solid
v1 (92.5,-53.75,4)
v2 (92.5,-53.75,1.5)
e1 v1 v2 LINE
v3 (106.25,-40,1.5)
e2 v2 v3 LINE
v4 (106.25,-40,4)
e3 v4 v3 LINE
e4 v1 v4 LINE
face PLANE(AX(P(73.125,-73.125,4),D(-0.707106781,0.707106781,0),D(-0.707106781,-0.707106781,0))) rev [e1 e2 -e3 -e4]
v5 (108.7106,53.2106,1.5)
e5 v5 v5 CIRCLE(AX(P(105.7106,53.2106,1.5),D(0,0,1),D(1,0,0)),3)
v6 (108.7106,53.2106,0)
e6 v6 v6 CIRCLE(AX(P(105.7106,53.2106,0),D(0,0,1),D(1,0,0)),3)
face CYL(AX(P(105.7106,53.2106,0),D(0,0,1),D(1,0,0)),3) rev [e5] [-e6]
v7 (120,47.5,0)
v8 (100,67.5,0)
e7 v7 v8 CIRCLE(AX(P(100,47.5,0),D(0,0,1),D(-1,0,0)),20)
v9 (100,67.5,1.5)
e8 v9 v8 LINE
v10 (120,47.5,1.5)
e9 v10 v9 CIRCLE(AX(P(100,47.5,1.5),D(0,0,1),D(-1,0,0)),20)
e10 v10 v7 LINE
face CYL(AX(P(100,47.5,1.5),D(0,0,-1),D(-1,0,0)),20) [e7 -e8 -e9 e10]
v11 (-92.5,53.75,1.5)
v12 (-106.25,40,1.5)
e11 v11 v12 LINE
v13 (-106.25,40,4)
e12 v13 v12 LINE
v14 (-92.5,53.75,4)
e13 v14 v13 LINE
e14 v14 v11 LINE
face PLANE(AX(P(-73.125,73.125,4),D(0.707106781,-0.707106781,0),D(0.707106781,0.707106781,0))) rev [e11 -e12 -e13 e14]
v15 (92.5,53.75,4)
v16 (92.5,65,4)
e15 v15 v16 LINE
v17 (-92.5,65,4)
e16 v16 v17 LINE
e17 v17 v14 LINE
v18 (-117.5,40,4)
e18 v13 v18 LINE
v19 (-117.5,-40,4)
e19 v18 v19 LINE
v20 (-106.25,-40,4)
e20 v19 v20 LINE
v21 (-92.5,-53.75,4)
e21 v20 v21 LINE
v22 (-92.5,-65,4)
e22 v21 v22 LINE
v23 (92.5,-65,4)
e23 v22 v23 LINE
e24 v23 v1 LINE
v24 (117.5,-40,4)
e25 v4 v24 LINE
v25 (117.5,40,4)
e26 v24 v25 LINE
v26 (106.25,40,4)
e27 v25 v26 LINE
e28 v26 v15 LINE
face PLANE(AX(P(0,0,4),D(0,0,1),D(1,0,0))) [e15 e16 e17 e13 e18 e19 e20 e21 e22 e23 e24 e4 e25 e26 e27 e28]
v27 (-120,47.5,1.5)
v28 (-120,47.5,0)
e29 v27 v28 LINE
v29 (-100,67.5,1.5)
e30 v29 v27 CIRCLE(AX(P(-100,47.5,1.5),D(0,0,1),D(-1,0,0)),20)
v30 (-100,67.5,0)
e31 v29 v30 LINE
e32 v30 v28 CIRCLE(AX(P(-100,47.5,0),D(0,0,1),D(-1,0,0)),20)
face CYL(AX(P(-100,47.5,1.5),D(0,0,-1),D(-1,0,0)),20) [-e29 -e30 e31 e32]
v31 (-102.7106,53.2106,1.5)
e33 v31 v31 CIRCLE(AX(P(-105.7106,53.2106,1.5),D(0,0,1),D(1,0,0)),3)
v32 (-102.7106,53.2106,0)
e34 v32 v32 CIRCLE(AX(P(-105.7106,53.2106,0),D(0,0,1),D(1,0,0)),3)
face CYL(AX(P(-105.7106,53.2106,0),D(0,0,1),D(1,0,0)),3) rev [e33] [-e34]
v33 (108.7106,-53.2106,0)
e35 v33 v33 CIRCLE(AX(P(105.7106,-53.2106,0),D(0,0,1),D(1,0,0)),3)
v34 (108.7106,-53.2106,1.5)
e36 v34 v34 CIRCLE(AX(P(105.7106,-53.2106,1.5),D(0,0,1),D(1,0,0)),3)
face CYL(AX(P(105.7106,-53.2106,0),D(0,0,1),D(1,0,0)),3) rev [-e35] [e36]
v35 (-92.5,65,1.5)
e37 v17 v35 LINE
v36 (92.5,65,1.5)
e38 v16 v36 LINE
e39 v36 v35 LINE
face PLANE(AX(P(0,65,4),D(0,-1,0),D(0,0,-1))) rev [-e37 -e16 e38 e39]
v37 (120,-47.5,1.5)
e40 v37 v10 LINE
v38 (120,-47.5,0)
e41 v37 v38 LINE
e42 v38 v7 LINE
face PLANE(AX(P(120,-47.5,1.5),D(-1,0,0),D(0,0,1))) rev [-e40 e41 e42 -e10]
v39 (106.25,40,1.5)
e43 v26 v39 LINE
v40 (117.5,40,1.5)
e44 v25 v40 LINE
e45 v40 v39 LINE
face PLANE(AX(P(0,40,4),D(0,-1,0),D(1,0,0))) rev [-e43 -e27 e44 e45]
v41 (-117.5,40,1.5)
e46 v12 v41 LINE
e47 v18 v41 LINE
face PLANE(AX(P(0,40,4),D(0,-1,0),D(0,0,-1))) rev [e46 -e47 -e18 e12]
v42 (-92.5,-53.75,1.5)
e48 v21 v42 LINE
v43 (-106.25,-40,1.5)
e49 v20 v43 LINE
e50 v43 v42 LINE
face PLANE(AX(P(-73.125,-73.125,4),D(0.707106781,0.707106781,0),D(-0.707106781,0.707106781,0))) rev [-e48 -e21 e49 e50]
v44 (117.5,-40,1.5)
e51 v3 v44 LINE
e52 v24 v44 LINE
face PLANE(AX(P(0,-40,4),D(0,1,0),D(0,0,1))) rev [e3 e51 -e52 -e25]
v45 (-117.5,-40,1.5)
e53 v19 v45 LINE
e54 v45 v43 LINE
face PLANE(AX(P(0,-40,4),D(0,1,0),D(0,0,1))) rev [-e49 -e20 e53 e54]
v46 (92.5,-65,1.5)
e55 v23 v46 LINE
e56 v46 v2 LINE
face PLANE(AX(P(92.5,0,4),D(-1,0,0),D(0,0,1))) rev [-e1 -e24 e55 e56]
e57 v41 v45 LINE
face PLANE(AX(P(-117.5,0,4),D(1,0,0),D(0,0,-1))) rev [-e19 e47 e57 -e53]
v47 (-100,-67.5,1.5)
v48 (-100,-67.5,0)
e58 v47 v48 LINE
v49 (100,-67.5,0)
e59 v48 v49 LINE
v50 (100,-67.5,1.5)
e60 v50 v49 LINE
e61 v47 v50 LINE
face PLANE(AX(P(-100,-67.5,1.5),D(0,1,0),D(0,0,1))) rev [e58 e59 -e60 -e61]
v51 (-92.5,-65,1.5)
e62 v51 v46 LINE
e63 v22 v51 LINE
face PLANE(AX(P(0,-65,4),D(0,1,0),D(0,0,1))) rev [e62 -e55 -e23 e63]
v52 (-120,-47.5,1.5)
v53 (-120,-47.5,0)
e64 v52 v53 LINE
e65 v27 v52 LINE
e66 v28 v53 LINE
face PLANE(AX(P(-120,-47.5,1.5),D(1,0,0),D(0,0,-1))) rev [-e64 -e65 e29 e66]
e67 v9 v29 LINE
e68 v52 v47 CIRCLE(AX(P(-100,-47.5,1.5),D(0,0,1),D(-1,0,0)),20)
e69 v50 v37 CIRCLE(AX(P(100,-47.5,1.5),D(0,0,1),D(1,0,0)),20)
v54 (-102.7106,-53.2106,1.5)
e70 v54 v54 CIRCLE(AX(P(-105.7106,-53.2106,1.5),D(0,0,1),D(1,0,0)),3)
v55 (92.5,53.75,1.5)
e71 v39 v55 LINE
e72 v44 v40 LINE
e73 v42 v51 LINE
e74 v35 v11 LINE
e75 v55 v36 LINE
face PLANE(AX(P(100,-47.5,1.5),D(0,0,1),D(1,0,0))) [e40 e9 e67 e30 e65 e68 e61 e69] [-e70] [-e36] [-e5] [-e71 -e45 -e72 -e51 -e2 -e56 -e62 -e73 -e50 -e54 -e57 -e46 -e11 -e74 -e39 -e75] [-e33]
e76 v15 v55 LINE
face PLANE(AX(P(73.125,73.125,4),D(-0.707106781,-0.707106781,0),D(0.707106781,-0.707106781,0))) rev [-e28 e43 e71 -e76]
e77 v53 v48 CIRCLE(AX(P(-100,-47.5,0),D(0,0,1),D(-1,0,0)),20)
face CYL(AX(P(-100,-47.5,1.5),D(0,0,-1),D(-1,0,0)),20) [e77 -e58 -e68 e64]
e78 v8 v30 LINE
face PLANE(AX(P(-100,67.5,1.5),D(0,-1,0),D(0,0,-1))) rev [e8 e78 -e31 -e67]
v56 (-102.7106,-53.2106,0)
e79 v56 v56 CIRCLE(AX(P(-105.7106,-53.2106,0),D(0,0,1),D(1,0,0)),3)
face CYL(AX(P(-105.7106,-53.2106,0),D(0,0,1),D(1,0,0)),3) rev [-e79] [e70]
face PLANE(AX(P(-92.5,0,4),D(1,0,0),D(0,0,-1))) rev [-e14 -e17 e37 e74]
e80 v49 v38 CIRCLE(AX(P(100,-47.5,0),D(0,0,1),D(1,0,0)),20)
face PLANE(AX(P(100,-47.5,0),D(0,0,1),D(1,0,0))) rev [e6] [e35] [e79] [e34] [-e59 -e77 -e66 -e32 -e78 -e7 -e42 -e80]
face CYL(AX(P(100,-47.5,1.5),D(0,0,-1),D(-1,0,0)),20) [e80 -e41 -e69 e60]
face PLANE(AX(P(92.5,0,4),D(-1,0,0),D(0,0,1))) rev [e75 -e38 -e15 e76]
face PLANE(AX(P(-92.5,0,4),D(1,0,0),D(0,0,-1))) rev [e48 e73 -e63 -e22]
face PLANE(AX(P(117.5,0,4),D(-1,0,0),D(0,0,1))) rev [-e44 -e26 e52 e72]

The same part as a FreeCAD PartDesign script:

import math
import FreeCAD as App
import Part
import Sketcher

V = App.Vector
Q = App.Units.Quantity

doc = App.newDocument("Part")
body = doc.addObject("PartDesign::Body", "Body")

sketch1 = body.newObject("Sketcher::SketchObject", "Sketch")
sketch1.AttachmentSupport = (doc.getObject("XY_Plane"), [""])
sketch1.MapMode = "FlatFace"
sketch1.addGeometry(Part.LineSegment(V(-100, -68, 0), V(100, -68, 0)), False)
sketch1.addGeometry(Part.ArcOfCircle(Part.Circle(V(100, -48, 0), V(0, 0, 1), 20), math.radians(-90), math.radians(0)), False)
sketch1.addGeometry(Part.LineSegment(V(120, -48, 0), V(120, 48, 0)), False)
sketch1.addGeometry(Part.ArcOfCircle(Part.Circle(V(100, 48, 0), V(0, 0, 1), 20), math.radians(0), math.radians(90)), False)
sketch1.addGeometry(Part.LineSegment(V(100, 68, 0), V(-100, 68, 0)), False)
sketch1.addGeometry(Part.ArcOfCircle(Part.Circle(V(-100, 48, 0), V(0, 0, 1), 20), math.radians(90), math.radians(180)), False)
sketch1.addGeometry(Part.LineSegment(V(-120, 48, 0), V(-120, -48, 0)), False)
sketch1.addGeometry(Part.ArcOfCircle(Part.Circle(V(-100, -48, 0), V(0, 0, 1), 20), math.radians(180), math.radians(270)), False)
sketch1.addConstraint(Sketcher.Constraint("Tangent", 0, 2, 1, 1))
sketch1.addConstraint(Sketcher.Constraint("Tangent", 1, 2, 2, 1))
sketch1.addConstraint(Sketcher.Constraint("Tangent", 2, 2, 3, 1))
sketch1.addConstraint(Sketcher.Constraint("Tangent", 3, 2, 4, 1))
sketch1.addConstraint(Sketcher.Constraint("Tangent", 4, 2, 5, 1))
sketch1.addConstraint(Sketcher.Constraint("Tangent", 5, 2, 6, 1))
sketch1.addConstraint(Sketcher.Constraint("Tangent", 6, 2, 7, 1))
sketch1.addConstraint(Sketcher.Constraint("Tangent", 7, 2, 0, 1))
sketch1.addConstraint(Sketcher.Constraint("Horizontal", 0))
sketch1.addConstraint(Sketcher.Constraint("Vertical", 2))
sketch1.addConstraint(Sketcher.Constraint("Horizontal", 4))
sketch1.addConstraint(Sketcher.Constraint("Vertical", 6))
sketch1.addConstraint(Sketcher.Constraint("Equal", 1, 3))
sketch1.addConstraint(Sketcher.Constraint("Equal", 3, 5))
sketch1.addConstraint(Sketcher.Constraint("Equal", 5, 7))
sketch1.addConstraint(Sketcher.Constraint("Symmetric", 1, 3, 5, 3, -1, 1))
sketch1.addConstraint(Sketcher.Constraint("Radius", 1, Q("20 mm")))
sketch1.addConstraint(Sketcher.Constraint("DistanceX", 0, 1, 0, 2, Q("200 mm")))
sketch1.addConstraint(Sketcher.Constraint("DistanceY", 2, 1, 2, 2, Q("95 mm")))
pad1 = body.newObject("PartDesign::Pad", "Pad")
pad1.Profile = sketch1
pad1.Length = 1.5

sketch2 = body.newObject("Sketcher::SketchObject", "Sketch001")
sketch2.AttachmentSupport = (doc.getObject("XY_Plane"), [""])
sketch2.MapMode = "FlatFace"
sketch2.AttachmentOffset = App.Placement(V(0, 0, 1.5), App.Rotation())
sketch2.addGeometry(Part.Circle(V(105.7, 53.2, 0), V(0, 0, 1), 3), False)
sketch2.addGeometry(Part.Circle(V(105.7, -53.2, 0), V(0, 0, 1), 3), False)
sketch2.addGeometry(Part.Circle(V(-105.7, -53.2, 0), V(0, 0, 1), 3), False)
sketch2.addGeometry(Part.Circle(V(-105.7, 53.2, 0), V(0, 0, 1), 3), False)
sketch2.addConstraint(Sketcher.Constraint("Equal", 0, 1))
sketch2.addConstraint(Sketcher.Constraint("Equal", 1, 2))
sketch2.addConstraint(Sketcher.Constraint("Equal", 2, 3))
sketch2.addConstraint(Sketcher.Constraint("Symmetric", 0, 3, 2, 3, -1, 1))
sketch2.addConstraint(Sketcher.Constraint("Symmetric", 1, 3, 3, 3, -1, 1))
sketch2.addConstraint(Sketcher.Constraint("Symmetric", 1, 3, 2, 3, -2))
sketch2.addConstraint(Sketcher.Constraint("Diameter", 0, Q("6 mm")))
sketch2.addConstraint(Sketcher.Constraint("DistanceX", -1, 1, 0, 3, Q("105.7106 mm")))
sketch2.addConstraint(Sketcher.Constraint("DistanceY", -1, 1, 0, 3, Q("53.2106 mm")))
pocket1 = body.newObject("PartDesign::Pocket", "Pocket")
pocket1.Profile = sketch2
pocket1.Type = "ThroughAll"
pocket1.Midplane = True

sketch3 = body.newObject("Sketcher::SketchObject", "Sketch002")
sketch3.AttachmentSupport = (doc.getObject("XY_Plane"), [""])
sketch3.MapMode = "FlatFace"
sketch3.AttachmentOffset = App.Placement(V(0, 0, 1.5), App.Rotation())
sketch3.addGeometry(Part.LineSegment(V(-106, -40, 0), V(-92, -54, 0)), False)
sketch3.addGeometry(Part.LineSegment(V(-92, -54, 0), V(-92, -65, 0)), False)
sketch3.addGeometry(Part.LineSegment(V(-92, -65, 0), V(92, -65, 0)), False)
sketch3.addGeometry(Part.LineSegment(V(92, -65, 0), V(92, -54, 0)), False)
sketch3.addGeometry(Part.LineSegment(V(92, -54, 0), V(106, -40, 0)), False)
sketch3.addGeometry(Part.LineSegment(V(106, -40, 0), V(118, -40, 0)), False)
sketch3.addGeometry(Part.LineSegment(V(118, -40, 0), V(118, 40, 0)), False)
sketch3.addGeometry(Part.LineSegment(V(118, 40, 0), V(106, 40, 0)), False)
sketch3.addGeometry(Part.LineSegment(V(106, 40, 0), V(92, 54, 0)), False)
sketch3.addGeometry(Part.LineSegment(V(92, 54, 0), V(92, 65, 0)), False)
sketch3.addGeometry(Part.LineSegment(V(92, 65, 0), V(-92, 65, 0)), False)
sketch3.addGeometry(Part.LineSegment(V(-92, 65, 0), V(-92, 54, 0)), False)
sketch3.addGeometry(Part.LineSegment(V(-92, 54, 0), V(-106, 40, 0)), False)
sketch3.addGeometry(Part.LineSegment(V(-106, 40, 0), V(-118, 40, 0)), False)
sketch3.addGeometry(Part.LineSegment(V(-118, 40, 0), V(-118, -40, 0)), False)
sketch3.addGeometry(Part.LineSegment(V(-118, -40, 0), V(-106, -40, 0)), False)
sketch3.addConstraint(Sketcher.Constraint("Coincident", 0, 2, 1, 1))
sketch3.addConstraint(Sketcher.Constraint("Coincident", 1, 2, 2, 1))
sketch3.addConstraint(Sketcher.Constraint("Coincident", 2, 2, 3, 1))
sketch3.addConstraint(Sketcher.Constraint("Coincident", 3, 2, 4, 1))
sketch3.addConstraint(Sketcher.Constraint("Coincident", 4, 2, 5, 1))
sketch3.addConstraint(Sketcher.Constraint("Coincident", 5, 2, 6, 1))
sketch3.addConstraint(Sketcher.Constraint("Coincident", 6, 2, 7, 1))
sketch3.addConstraint(Sketcher.Constraint("Coincident", 7, 2, 8, 1))
sketch3.addConstraint(Sketcher.Constraint("Coincident", 8, 2, 9, 1))
sketch3.addConstraint(Sketcher.Constraint("Coincident", 9, 2, 10, 1))
sketch3.addConstraint(Sketcher.Constraint("Coincident", 10, 2, 11, 1))
sketch3.addConstraint(Sketcher.Constraint("Coincident", 11, 2, 12, 1))
sketch3.addConstraint(Sketcher.Constraint("Coincident", 12, 2, 13, 1))
sketch3.addConstraint(Sketcher.Constraint("Coincident", 13, 2, 14, 1))
sketch3.addConstraint(Sketcher.Constraint("Coincident", 14, 2, 15, 1))
sketch3.addConstraint(Sketcher.Constraint("Coincident", 15, 2, 0, 1))
sketch3.addConstraint(Sketcher.Constraint("Vertical", 1))
sketch3.addConstraint(Sketcher.Constraint("Horizontal", 2))
sketch3.addConstraint(Sketcher.Constraint("Vertical", 3))
sketch3.addConstraint(Sketcher.Constraint("Horizontal", 5))
sketch3.addConstraint(Sketcher.Constraint("Vertical", 6))
sketch3.addConstraint(Sketcher.Constraint("Horizontal", 7))
sketch3.addConstraint(Sketcher.Constraint("Vertical", 9))
sketch3.addConstraint(Sketcher.Constraint("Horizontal", 10))
sketch3.addConstraint(Sketcher.Constraint("Vertical", 11))
sketch3.addConstraint(Sketcher.Constraint("Horizontal", 13))
sketch3.addConstraint(Sketcher.Constraint("Vertical", 14))
sketch3.addConstraint(Sketcher.Constraint("Horizontal", 15))
sketch3.addConstraint(Sketcher.Constraint("Symmetric", 0, 2, 8, 2, -1, 1))
sketch3.addConstraint(Sketcher.Constraint("Symmetric", 2, 2, 10, 2, -1, 1))
sketch3.addConstraint(Sketcher.Constraint("Symmetric", 4, 2, 12, 2, -1, 1))
sketch3.addConstraint(Sketcher.Constraint("Symmetric", 6, 2, 14, 2, -1, 1))
sketch3.addConstraint(Sketcher.Constraint("Symmetric", 0, 2, 3, 2, -2))
sketch3.addConstraint(Sketcher.Constraint("Symmetric", 7, 2, 12, 2, -2))
sketch3.addConstraint(Sketcher.Constraint("Perpendicular", 0, 4))
sketch3.addConstraint(Sketcher.Constraint("Perpendicular", 4, 8))
sketch3.addConstraint(Sketcher.Constraint("Perpendicular", 8, 12))
sketch3.addConstraint(Sketcher.Constraint("Equal", 15, 1))
sketch3.addConstraint(Sketcher.Constraint("DistanceX", 2, 1, 2, 2, Q("185 mm")))
sketch3.addConstraint(Sketcher.Constraint("DistanceY", 6, 1, 6, 2, Q("80 mm")))
sketch3.addConstraint(Sketcher.Constraint("DistanceY", 1, 2, -1, 1, Q("65 mm")))
sketch3.addConstraint(Sketcher.Constraint("DistanceX", 5, 1, 5, 2, Q("11.25 mm")))
pad2 = body.newObject("PartDesign::Pad", "Pad001")
pad2.Profile = sketch3
pad2.Length = 2.5

doc.recompute()
